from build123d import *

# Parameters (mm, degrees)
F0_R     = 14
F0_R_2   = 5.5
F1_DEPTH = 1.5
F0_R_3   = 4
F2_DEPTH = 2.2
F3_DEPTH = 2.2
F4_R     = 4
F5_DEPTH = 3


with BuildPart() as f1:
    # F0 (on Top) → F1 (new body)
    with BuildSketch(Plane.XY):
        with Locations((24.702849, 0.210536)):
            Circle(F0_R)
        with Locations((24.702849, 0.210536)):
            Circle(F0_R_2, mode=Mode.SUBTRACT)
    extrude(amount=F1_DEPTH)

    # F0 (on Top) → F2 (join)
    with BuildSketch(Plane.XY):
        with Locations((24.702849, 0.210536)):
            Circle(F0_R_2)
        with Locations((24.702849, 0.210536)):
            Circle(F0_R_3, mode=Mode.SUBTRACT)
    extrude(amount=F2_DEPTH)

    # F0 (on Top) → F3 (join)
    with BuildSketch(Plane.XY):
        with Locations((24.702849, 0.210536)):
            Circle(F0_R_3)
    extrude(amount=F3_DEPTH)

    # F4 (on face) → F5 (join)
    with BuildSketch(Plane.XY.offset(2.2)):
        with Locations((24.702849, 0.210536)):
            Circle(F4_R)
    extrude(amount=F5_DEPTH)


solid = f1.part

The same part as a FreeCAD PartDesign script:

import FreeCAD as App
import Part
import Sketcher
Q = App.Units.Quantity

doc = App.newDocument("Part")
body = doc.addObject("PartDesign::Body", "Body")

# Sketch on XY plane
sketch1 = doc.addObject("Sketcher::SketchObject", "Sketch")
body.addObject(sketch1)
sketch1.AttachmentSupport = (doc.XY_Plane, [""])
sketch1.MapMode = "FlatFace"
sketch1.addGeometry(Part.Circle(App.Vector(25, 0, 0), App.Vector(0, 0, 1), 14), False)
sketch1.addGeometry(Part.Circle(App.Vector(25, 0, 0), App.Vector(0, 0, 1), 6), False)
sketch1.addConstraint(Sketcher.Constraint("Coincident", 1, 3, 0, 3))
sketch1.addConstraint(Sketcher.Constraint("Diameter", 0, Q("28 mm")))
sketch1.addConstraint(Sketcher.Constraint("Diameter", 1, Q("11 mm")))
sketch1.addConstraint(Sketcher.Constraint("DistanceX", -1, 1, 0, 3, Q("24.702849 mm")))
sketch1.addConstraint(Sketcher.Constraint("DistanceY", -1, 1, 0, 3, Q("0.210536 mm")))
pad1 = doc.addObject("PartDesign::Pad", "Pad")
body.addObject(pad1)
pad1.Profile = sketch1
pad1.Length = 1.5

# Sketch on XY plane
sketch2 = doc.addObject("Sketcher::SketchObject", "Sketch001")
body.addObject(sketch2)
sketch2.AttachmentSupport = (doc.XY_Plane, [""])
sketch2.MapMode = "FlatFace"
sketch2.addGeometry(Part.Circle(App.Vector(24.7, 0.2, 0), App.Vector(0, 0, 1), 5.5), False)
sketch2.addGeometry(Part.Circle(App.Vector(24.7, 0.2, 0), App.Vector(0, 0, 1), 4), False)
sketch2.addConstraint(Sketcher.Constraint("Coincident", 1, 3, 0, 3))
sketch2.addConstraint(Sketcher.Constraint("Diameter", 0, Q("11 mm")))
sketch2.addConstraint(Sketcher.Constraint("Diameter", 1, Q("8 mm")))
sketch2.addConstraint(Sketcher.Constraint("DistanceX", -1, 1, 0, 3, Q("24.702849 mm")))
sketch2.addConstraint(Sketcher.Constraint("DistanceY", -1, 1, 0, 3, Q("0.210536 mm")))
pad2 = doc.addObject("PartDesign::Pad", "Pad001")
body.addObject(pad2)
pad2.Profile = sketch2
pad2.Length = 2.2

# Sketch on XY plane
sketch3 = doc.addObject("Sketcher::SketchObject", "Sketch002")
body.addObject(sketch3)
sketch3.AttachmentSupport = (doc.XY_Plane, [""])
sketch3.MapMode = "FlatFace"
sketch3.addGeometry(Part.Circle(App.Vector(24.7, 0.2, 0), App.Vector(0, 0, 1), 4), False)
sketch3.addConstraint(Sketcher.Constraint("Diameter", 0, Q("8 mm")))
sketch3.addConstraint(Sketcher.Constraint("DistanceX", -1, 1, 0, 3, Q("24.702849 mm")))
sketch3.addConstraint(Sketcher.Constraint("DistanceY", -1, 1, 0, 3, Q("0.210536 mm")))
pad3 = doc.addObject("PartDesign::Pad", "Pad002")
body.addObject(pad3)
pad3.Profile = sketch3
pad3.Length = 2.2

# Sketch on XY plane
sketch4 = doc.addObject("Sketcher::SketchObject", "Sketch003")
body.addObject(sketch4)
sketch4.AttachmentSupport = (doc.XY_Plane, [""])
sketch4.MapMode = "FlatFace"
sketch4.AttachmentOffset = App.Placement(App.Vector(0, 0, 2.2), App.Rotation())
sketch4.addGeometry(Part.Circle(App.Vector(24.7, 0.2, 0), App.Vector(0, 0, 1), 4), False)
sketch4.addConstraint(Sketcher.Constraint("Diameter", 0, Q("8 mm")))
sketch4.addConstraint(Sketcher.Constraint("DistanceX", -1, 1, 0, 3, Q("24.702849 mm")))
sketch4.addConstraint(Sketcher.Constraint("DistanceY", -1, 1, 0, 3, Q("0.210536 mm")))
pad4 = doc.addObject("PartDesign::Pad", "Pad003")
body.addObject(pad4)
pad4.Profile = sketch4
pad4.Length = 3

doc.recompute()
